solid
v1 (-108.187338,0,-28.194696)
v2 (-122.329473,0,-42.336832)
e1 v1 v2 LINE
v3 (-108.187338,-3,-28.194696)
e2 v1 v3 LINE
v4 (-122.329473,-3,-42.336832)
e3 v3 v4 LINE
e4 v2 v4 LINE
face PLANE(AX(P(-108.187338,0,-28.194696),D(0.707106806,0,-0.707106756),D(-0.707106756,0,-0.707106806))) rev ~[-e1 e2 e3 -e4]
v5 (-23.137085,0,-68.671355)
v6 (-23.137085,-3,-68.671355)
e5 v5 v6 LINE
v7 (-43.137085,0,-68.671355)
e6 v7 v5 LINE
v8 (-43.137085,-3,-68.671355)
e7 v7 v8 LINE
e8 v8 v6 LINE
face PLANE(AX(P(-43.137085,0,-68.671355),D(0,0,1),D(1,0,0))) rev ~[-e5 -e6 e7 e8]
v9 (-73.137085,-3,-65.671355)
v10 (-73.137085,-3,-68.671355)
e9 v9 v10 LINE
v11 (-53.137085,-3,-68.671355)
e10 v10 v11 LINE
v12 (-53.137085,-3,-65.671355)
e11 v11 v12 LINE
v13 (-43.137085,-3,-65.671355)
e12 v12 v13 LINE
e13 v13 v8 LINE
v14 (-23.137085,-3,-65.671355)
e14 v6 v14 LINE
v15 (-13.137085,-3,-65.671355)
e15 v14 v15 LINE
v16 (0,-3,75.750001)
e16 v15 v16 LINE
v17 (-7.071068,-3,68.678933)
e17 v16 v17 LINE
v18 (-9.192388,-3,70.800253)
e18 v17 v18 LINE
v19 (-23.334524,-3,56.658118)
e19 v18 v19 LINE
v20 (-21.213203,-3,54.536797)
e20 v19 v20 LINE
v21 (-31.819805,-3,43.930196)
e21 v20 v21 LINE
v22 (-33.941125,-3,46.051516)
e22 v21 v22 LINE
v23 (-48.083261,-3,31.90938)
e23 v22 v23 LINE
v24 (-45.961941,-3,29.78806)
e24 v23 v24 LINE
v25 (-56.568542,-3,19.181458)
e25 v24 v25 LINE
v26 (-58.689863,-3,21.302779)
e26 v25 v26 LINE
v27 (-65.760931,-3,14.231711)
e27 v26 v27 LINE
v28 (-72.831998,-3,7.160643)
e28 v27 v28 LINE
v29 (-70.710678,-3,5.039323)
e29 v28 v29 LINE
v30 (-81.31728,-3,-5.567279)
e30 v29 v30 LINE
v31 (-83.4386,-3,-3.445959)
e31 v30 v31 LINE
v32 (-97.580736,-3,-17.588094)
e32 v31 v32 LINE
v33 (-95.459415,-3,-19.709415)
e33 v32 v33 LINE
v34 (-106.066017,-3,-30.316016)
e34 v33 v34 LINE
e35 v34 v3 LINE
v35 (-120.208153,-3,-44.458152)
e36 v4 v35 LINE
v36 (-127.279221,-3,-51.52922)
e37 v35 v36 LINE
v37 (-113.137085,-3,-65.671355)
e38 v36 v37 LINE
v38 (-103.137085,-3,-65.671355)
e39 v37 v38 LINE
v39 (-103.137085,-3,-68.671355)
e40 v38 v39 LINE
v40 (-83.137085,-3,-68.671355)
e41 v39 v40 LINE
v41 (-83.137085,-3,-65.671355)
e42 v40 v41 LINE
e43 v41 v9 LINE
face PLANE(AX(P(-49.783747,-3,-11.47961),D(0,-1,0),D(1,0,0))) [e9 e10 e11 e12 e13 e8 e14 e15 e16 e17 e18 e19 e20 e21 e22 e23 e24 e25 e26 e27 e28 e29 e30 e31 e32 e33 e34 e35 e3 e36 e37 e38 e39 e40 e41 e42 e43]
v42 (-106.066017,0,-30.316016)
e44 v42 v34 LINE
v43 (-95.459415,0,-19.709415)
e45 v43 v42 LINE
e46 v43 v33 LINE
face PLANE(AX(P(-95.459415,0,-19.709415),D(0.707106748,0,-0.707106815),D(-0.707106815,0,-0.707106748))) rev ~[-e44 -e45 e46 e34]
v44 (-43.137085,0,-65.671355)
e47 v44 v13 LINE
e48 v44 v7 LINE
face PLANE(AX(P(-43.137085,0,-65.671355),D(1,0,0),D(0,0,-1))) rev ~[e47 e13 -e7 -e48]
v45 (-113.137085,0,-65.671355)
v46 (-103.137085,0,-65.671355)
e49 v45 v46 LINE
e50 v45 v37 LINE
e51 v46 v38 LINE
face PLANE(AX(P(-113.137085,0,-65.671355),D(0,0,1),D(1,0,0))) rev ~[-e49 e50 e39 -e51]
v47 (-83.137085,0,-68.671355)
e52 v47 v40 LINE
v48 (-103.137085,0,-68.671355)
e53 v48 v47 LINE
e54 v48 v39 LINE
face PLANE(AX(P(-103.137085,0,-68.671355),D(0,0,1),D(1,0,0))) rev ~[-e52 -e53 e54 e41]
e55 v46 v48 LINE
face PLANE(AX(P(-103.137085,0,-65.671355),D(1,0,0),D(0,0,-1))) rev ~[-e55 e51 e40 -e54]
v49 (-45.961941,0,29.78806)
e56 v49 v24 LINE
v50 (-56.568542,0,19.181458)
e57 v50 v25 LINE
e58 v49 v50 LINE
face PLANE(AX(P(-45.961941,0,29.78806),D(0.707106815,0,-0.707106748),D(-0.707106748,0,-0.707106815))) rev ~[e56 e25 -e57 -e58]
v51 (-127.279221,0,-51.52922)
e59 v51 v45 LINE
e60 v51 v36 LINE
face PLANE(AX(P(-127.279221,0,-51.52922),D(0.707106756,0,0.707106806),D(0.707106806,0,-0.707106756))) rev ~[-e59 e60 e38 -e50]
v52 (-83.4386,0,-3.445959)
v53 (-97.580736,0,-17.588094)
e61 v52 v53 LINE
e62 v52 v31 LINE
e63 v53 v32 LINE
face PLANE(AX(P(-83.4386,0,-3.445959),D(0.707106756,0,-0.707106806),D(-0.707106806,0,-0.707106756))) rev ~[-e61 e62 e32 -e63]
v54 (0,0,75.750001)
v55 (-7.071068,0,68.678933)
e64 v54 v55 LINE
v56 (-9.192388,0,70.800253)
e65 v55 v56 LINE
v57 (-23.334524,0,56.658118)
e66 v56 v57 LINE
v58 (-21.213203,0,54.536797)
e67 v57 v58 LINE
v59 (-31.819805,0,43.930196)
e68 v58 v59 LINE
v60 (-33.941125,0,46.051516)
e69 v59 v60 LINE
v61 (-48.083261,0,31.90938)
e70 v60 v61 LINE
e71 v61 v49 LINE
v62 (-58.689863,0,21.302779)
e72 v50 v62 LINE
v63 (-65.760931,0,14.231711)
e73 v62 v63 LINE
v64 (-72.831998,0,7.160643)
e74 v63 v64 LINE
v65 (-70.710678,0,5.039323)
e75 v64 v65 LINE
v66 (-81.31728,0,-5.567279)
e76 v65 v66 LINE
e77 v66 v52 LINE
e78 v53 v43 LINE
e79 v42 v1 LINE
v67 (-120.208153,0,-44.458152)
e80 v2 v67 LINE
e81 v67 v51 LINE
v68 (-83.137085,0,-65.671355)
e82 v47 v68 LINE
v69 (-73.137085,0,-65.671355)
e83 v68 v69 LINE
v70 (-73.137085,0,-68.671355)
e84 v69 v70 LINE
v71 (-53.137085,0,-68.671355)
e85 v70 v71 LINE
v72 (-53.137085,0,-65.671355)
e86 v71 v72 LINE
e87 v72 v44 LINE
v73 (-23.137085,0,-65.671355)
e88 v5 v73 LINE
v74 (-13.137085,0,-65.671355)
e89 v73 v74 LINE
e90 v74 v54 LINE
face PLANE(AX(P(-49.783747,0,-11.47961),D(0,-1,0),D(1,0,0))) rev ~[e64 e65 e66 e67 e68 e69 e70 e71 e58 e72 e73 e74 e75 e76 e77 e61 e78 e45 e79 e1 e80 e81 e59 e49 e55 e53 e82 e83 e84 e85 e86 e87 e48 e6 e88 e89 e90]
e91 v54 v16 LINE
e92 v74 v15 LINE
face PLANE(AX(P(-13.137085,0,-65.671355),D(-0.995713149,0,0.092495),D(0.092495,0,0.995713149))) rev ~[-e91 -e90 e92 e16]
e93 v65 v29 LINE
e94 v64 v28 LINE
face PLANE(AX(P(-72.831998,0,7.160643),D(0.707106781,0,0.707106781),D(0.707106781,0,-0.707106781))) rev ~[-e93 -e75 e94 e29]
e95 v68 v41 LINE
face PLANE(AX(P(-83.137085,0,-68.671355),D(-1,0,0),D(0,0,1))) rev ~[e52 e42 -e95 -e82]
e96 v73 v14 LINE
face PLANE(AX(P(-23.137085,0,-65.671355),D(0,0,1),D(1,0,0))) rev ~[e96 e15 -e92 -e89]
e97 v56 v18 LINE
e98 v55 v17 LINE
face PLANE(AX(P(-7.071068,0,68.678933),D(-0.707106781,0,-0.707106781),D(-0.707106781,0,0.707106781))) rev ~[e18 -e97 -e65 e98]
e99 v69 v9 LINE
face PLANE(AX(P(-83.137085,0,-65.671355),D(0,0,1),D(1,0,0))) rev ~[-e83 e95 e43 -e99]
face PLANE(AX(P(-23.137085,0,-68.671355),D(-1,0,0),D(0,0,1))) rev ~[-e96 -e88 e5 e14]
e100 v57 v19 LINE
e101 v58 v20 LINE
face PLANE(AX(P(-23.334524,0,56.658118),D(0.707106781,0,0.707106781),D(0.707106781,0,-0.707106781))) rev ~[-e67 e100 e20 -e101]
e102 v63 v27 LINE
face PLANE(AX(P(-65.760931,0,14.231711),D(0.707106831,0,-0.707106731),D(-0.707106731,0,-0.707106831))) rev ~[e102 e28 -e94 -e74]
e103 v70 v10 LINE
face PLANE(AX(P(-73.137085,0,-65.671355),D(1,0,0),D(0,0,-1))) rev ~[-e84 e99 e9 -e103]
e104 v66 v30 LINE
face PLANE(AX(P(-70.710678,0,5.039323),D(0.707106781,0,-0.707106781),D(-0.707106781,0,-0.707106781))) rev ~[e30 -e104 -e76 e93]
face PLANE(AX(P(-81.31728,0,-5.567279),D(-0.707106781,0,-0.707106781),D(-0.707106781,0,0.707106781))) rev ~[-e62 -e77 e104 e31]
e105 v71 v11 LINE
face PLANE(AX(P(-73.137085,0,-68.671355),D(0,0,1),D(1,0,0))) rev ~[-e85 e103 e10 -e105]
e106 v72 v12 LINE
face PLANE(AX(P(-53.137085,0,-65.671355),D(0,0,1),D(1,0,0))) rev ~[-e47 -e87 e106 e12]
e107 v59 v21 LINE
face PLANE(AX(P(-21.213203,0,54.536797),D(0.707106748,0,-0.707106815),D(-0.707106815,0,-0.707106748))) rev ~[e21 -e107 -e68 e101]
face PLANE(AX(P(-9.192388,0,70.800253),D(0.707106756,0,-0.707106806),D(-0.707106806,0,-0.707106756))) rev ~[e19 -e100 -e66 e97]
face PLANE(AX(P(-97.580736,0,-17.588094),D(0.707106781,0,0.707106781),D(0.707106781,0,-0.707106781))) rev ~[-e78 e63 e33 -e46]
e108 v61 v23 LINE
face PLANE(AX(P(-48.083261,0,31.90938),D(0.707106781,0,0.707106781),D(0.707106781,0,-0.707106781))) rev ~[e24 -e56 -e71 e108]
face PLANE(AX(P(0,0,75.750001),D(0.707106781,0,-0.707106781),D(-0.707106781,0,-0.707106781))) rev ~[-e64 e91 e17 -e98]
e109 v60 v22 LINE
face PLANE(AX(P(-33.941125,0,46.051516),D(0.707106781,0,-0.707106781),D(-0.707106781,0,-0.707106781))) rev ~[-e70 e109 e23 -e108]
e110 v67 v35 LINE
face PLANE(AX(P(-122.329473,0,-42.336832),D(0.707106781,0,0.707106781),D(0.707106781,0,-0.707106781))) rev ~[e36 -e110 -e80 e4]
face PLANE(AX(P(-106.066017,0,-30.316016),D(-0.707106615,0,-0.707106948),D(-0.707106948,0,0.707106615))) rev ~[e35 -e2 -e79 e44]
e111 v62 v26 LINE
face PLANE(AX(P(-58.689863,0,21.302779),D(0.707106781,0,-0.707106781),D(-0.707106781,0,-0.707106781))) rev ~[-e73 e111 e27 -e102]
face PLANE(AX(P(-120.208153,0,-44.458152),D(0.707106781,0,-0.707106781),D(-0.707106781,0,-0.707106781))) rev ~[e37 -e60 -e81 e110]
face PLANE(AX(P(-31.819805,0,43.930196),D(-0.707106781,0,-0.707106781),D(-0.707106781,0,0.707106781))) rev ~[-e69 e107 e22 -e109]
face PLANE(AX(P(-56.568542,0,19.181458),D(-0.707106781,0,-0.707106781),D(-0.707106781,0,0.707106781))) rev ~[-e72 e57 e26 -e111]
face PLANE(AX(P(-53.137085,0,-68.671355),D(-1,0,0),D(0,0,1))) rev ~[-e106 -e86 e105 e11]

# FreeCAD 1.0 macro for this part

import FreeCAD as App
import Part
import Sketcher

V = App.Vector
Q = App.Units.Quantity


def add_polygon(sketch, points):
    """Adds a closed chain of lines whose ends are joined by coincident constraints."""
    first, n = sketch.GeometryCount, len(points)
    for a, b in zip(points, points[1:] + points[:1]):
        sketch.addGeometry(Part.LineSegment(App.Vector(*a, 0), App.Vector(*b, 0)), False)
    for i in range(n):
        sketch.addConstraint(Sketcher.Constraint("Coincident", first + i, 2, first + (i + 1) % n, 1))

doc = App.newDocument("Part")
body = doc.addObject("PartDesign::Body", "Body")

# Sketch on XZ plane
sketch1 = body.newObject("Sketcher::SketchObject", "Sketch")
sketch1.AttachmentSupport = (doc.getObject("XZ_Plane"), [""])
sketch1.MapMode = "FlatFace"
add_polygon(sketch1, [(-13.137085, -65.671355), (0, 75.750001), (-7.071068, 68.678933), (-9.192388, 70.800253), (-23.334524, 56.658118), (-21.213203, 54.536797), (-31.819805, 43.930196), (-33.941125, 46.051516), (-48.083261, 31.90938), (-45.961941, 29.78806), (-56.568542, 19.181458), (-58.689863, 21.302779), (-65.760931, 14.231711), (-72.831998, 7.160643), (-70.710678, 5.039323), (-81.31728, -5.567279), (-83.4386, -3.445959), (-97.580736, -17.588094), (-95.459415, -19.709415), (-106.066017, -30.316016), (-108.187338, -28.194696), (-122.329473, -42.336832), (-120.208153, -44.458152), (-127.279221, -51.52922), (-113.137085, -65.671355), (-103.137085, -65.671355), (-103.137085, -68.671355), (-83.137085, -68.671355), (-83.137085, -65.671355), (-73.137085, -65.671355), (-73.137085, -68.671355), (-53.137085, -68.671355), (-53.137085, -65.671355), (-43.137085, -65.671355), (-43.137085, -68.671355), (-23.137085, -68.671355), (-23.137085, -65.671355)])  # lines 0-36
sketch1.addConstraint(Sketcher.Constraint("Horizontal", 24))
sketch1.addConstraint(Sketcher.Constraint("Vertical", 25))
sketch1.addConstraint(Sketcher.Constraint("Horizontal", 26))
sketch1.addConstraint(Sketcher.Constraint("Vertical", 27))
sketch1.addConstraint(Sketcher.Constraint("Horizontal", 28))
sketch1.addConstraint(Sketcher.Constraint("Vertical", 29))
sketch1.addConstraint(Sketcher.Constraint("Horizontal", 30))
sketch1.addConstraint(Sketcher.Constraint("Vertical", 31))
sketch1.addConstraint(Sketcher.Constraint("Horizontal", 32))
sketch1.addConstraint(Sketcher.Constraint("Vertical", 33))
sketch1.addConstraint(Sketcher.Constraint("Horizontal", 34))
sketch1.addConstraint(Sketcher.Constraint("Vertical", 35))
sketch1.addConstraint(Sketcher.Constraint("Horizontal", 36))
sketch1.addConstraint(Sketcher.Constraint("PointOnObject", 0, 2, -2))
sketch1.addConstraint(Sketcher.Constraint("Perpendicular", 1, 2))
sketch1.addConstraint(Sketcher.Constraint("Perpendicular", 2, 3))
sketch1.addConstraint(Sketcher.Constraint("Perpendicular", 3, 4))
sketch1.addConstraint(Sketcher.Constraint("Perpendicular", 4, 5))
sketch1.addConstraint(Sketcher.Constraint("Perpendicular", 5, 6))
sketch1.addConstraint(Sketcher.Constraint("Perpendicular", 6, 7))
sketch1.addConstraint(Sketcher.Constraint("Perpendicular", 7, 8))
sketch1.addConstraint(Sketcher.Constraint("Perpendicular", 8, 9))
sketch1.addConstraint(Sketcher.Constraint("Perpendicular", 9, 10))
sketch1.addConstraint(Sketcher.Constraint("Perpendicular", 10, 11))
sketch1.addConstraint(Sketcher.Constraint("Parallel", 11, 12))
sketch1.addConstraint(Sketcher.Constraint("Perpendicular", 12, 13))
sketch1.addConstraint(Sketcher.Constraint("Perpendicular", 13, 14))
sketch1.addConstraint(Sketcher.Constraint("Perpendicular", 14, 15))
sketch1.addConstraint(Sketcher.Constraint("Perpendicular", 15, 16))
sketch1.addConstraint(Sketcher.Constraint("Perpendicular", 16, 17))
sketch1.addConstraint(Sketcher.Constraint("Perpendicular", 17, 18))
sketch1.addConstraint(Sketcher.Constraint("Perpendicular", 18, 19))
sketch1.addConstraint(Sketcher.Constraint("Perpendicular", 19, 20))
sketch1.addConstraint(Sketcher.Constraint("Perpendicular", 20, 21))
sketch1.addConstraint(Sketcher.Constraint("Perpendicular", 21, 22))
sketch1.addConstraint(Sketcher.Constraint("Perpendicular", 22, 23))
sketch1.addConstraint(Sketcher.Constraint("Horizontal", 24, 2, 27, 2))
sketch1.addConstraint(Sketcher.Constraint("Horizontal", 26, 2, 29, 2))
sketch1.addConstraint(Sketcher.Constraint("Horizontal", 28, 2, 31, 2))
sketch1.addConstraint(Sketcher.Constraint("Horizontal", 30, 2, 33, 2))
sketch1.addConstraint(Sketcher.Constraint("Horizontal", 32, 2, 35, 2))
sketch1.addConstraint(Sketcher.Constraint("Equal", 24, 28))
sketch1.addConstraint(Sketcher.Constraint("Equal", 26, 30))
sketch1.addConstraint(Sketcher.Constraint("Equal", 28, 32))
sketch1.addConstraint(Sketcher.Constraint("Equal", 30, 34))
sketch1.addConstraint(Sketcher.Constraint("Equal", 32, 36))
sketch1.addConstraint(Sketcher.Constraint("Equal", 2, 4))
sketch1.addConstraint(Sketcher.Constraint("Equal", 4, 6))
sketch1.addConstraint(Sketcher.Constraint("Equal", 3, 7))
sketch1.addConstraint(Sketcher.Constraint("Equal", 6, 8))
sketch1.addConstraint(Sketcher.Constraint("Equal", 5, 9))
sketch1.addConstraint(Sketcher.Constraint("Equal", 8, 10))
sketch1.addConstraint(Sketcher.Constraint("Equal", 1, 11))
sketch1.addConstraint(Sketcher.Constraint("Equal", 11, 12))
sketch1.addConstraint(Sketcher.Constraint("Equal", 10, 13))
sketch1.addConstraint(Sketcher.Constraint("Equal", 9, 14))
sketch1.addConstraint(Sketcher.Constraint("Equal", 13, 15))
sketch1.addConstraint(Sketcher.Constraint("Equal", 7, 16))
sketch1.addConstraint(Sketcher.Constraint("Equal", 15, 17))
sketch1.addConstraint(Sketcher.Constraint("Equal", 14, 18))
sketch1.addConstraint(Sketcher.Constraint("Equal", 17, 19))
sketch1.addConstraint(Sketcher.Constraint("Equal", 16, 20))
sketch1.addConstraint(Sketcher.Constraint("Equal", 19, 21))
sketch1.addConstraint(Sketcher.Constraint("Equal", 12, 22))
sketch1.addConstraint(Sketcher.Constraint("Equal", 20, 23))
sketch1.addConstraint(Sketcher.Constraint("DistanceX", 24, 1, 24, 2, Q("10 mm")))
sketch1.addConstraint(Sketcher.Constraint("DistanceX", 26, 1, 26, 2, Q("20 mm")))
sketch1.addConstraint(Sketcher.Constraint("DistanceY", 25, 2, 25, 1, Q("3 mm")))
sketch1.addConstraint(Sketcher.Constraint("Angle", 1, Q("-135 deg")))
sketch1.addConstraint(Sketcher.Constraint("Distance", 1, Q("10 mm")))
sketch1.addConstraint(Sketcher.Constraint("Distance", 2, Q("3 mm")))
sketch1.addConstraint(Sketcher.Constraint("Distance", 3, Q("20 mm")))
sketch1.addConstraint(Sketcher.Constraint("Distance", 5, Q("15 mm")))
sketch1.addConstraint(Sketcher.Constraint("DistanceY", -1, 1, 0, 2, Q("75.750001 mm")))
pad1 = body.newObject("PartDesign::Pad", "Pad")
pad1.Profile = sketch1
pad1.Length = 3

doc.recompute()
